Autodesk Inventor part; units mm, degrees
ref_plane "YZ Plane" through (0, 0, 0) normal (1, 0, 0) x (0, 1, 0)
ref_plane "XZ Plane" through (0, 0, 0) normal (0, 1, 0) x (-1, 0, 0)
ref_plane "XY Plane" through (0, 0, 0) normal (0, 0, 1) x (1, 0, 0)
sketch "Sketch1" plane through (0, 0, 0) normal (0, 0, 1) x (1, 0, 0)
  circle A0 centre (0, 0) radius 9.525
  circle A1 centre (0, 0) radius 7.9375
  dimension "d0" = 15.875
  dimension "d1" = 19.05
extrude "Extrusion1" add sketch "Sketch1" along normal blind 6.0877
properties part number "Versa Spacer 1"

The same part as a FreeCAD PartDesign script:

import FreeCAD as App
import Part
import Sketcher

V = App.Vector
Q = App.Units.Quantity

doc = App.newDocument("Part")
params = doc.addObject("Spreadsheet::Sheet", "Params")
for row, (alias, value) in enumerate([
    ("sketch1_diameter", "0.75 in"),
    ("sketch1_diameter2", "0.625 in"),
    ("pad1_length", "6.0877 mm"),
], start=1):
    params.set(f"A{row}", alias)
    params.set(f"B{row}", "=" + value)
    params.setAlias(f"B{row}", alias)

body = doc.addObject("PartDesign::Body", "Body")

# Sketch on XY plane
sketch1 = body.newObject("Sketcher::SketchObject", "Sketch")
sketch1.AttachmentSupport = (doc.getObject("XY_Plane"), [""])
sketch1.MapMode = "FlatFace"
sketch1.addGeometry([
    Part.Circle(V(0, 0, 0), V(0, 0, 1), 10),
    Part.Circle(V(0, 0, 0), V(0, 0, 1), 8),
], False)
sketch1.addConstraint([
    Sketcher.Constraint("Coincident", 0, 3, -1, 1),
    Sketcher.Constraint("Coincident", 1, 3, -1, 1),
    Sketcher.Constraint("Diameter", 0, Q("0.75 in")),
    Sketcher.Constraint("Diameter", 1, Q("0.625 in")),
])
sketch1.setExpression("Constraints[2]", "Params.sketch1_diameter")
sketch1.setExpression("Constraints[3]", "Params.sketch1_diameter2")
pad1 = body.newObject("PartDesign::Pad", "Pad")
pad1.Profile = sketch1
pad1.setExpression("Length", "Params.pad1_length")

doc.recompute()
